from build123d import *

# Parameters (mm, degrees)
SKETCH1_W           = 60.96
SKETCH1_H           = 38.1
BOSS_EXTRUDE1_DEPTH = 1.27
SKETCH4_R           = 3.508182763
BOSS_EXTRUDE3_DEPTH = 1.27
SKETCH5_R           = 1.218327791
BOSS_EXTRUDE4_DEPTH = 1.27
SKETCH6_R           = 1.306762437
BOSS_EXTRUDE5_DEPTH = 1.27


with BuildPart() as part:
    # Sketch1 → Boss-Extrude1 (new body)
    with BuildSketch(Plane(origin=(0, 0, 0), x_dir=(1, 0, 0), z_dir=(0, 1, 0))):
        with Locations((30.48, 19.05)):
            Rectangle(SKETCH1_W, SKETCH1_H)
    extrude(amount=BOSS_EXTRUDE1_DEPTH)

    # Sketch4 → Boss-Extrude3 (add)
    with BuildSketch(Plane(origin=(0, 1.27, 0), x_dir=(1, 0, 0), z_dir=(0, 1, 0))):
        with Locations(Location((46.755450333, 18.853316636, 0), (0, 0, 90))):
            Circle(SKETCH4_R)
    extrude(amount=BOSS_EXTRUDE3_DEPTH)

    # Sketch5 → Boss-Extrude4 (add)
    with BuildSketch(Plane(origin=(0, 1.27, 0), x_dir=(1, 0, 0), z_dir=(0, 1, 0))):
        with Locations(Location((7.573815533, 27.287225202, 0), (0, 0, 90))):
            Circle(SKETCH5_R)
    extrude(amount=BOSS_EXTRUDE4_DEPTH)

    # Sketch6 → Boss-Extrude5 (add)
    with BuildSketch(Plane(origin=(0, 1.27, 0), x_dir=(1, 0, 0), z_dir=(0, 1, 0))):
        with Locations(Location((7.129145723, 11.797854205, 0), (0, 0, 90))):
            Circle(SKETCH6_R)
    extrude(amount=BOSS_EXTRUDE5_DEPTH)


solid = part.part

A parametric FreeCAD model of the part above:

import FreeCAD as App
import Part
import Sketcher
Q = App.Units.Quantity

doc = App.newDocument("Part")
body = doc.addObject("PartDesign::Body", "Body")

# Sketch on XZ plane
sketch1 = body.newObject("Sketcher::SketchObject", "Sketch")
sketch1.AttachmentSupport = (doc.getObject("XZ_Plane"), [""])
sketch1.MapMode = "FlatFace"
sketch1.addGeometry([
    Part.LineSegment(App.Vector(0, -38, 0), App.Vector(0, 0, 0)),
    Part.LineSegment(App.Vector(0, 0, 0), App.Vector(61, 0, 0)),
    Part.LineSegment(App.Vector(61, 0, 0), App.Vector(61, -38, 0)),
    Part.LineSegment(App.Vector(61, -38, 0), App.Vector(0, -38, 0)),
], False)
sketch1.addConstraint([
    Sketcher.Constraint("Coincident", 0, 2, 1, 1),
    Sketcher.Constraint("Coincident", 1, 2, 2, 1),
    Sketcher.Constraint("Coincident", 2, 2, 3, 1),
    Sketcher.Constraint("Coincident", 3, 2, 0, 1),
    Sketcher.Constraint("Vertical", 0),
    Sketcher.Constraint("Horizontal", 1),
    Sketcher.Constraint("Vertical", 2),
    Sketcher.Constraint("Horizontal", 3),
    Sketcher.Constraint("Coincident", 0, 2, -1, 1),
    Sketcher.Constraint("DistanceX", 1, 1, 1, 2, Q("2.4 in")),
    Sketcher.Constraint("DistanceY", 0, 1, 0, 2, Q("1.5 in")),
])
pad1 = body.newObject("PartDesign::Pad", "Pad")
pad1.Profile = sketch1
pad1.Length = Q("0.05 in")
pad1.Reversed = True

# Sketch on XZ plane
sketch2 = body.newObject("Sketcher::SketchObject", "Sketch001")
sketch2.AttachmentSupport = (doc.getObject("XZ_Plane"), [""])
sketch2.MapMode = "FlatFace"
sketch2.AttachmentOffset = App.Placement(App.Vector(0, 0, -0.05 * 25.4), App.Rotation())
sketch2.addGeometry(Part.Circle(App.Vector(46.8, -18.9, 0), App.Vector(0, 0, 1), 3.5), False)
sketch2.addConstraint([
    Sketcher.Constraint("Diameter", 0, 7.016366),
    Sketcher.Constraint("DistanceX", -1, 1, 0, 3, 46.75545),
    Sketcher.Constraint("DistanceY", 0, 3, -1, 1, 18.853317),
])
pad2 = body.newObject("PartDesign::Pad", "Pad001")
pad2.Profile = sketch2
pad2.Length = Q("0.05 in")
pad2.Reversed = True

# Sketch on XZ plane
sketch3 = body.newObject("Sketcher::SketchObject", "Sketch002")
sketch3.AttachmentSupport = (doc.getObject("XZ_Plane"), [""])
sketch3.MapMode = "FlatFace"
sketch3.AttachmentOffset = App.Placement(App.Vector(0, 0, -0.05 * 25.4), App.Rotation())
sketch3.addGeometry(Part.Circle(App.Vector(7.6, -27.3, 0), App.Vector(0, 0, 1), 1.2), False)
sketch3.addConstraint([
    Sketcher.Constraint("Diameter", 0, 2.436656),
    Sketcher.Constraint("DistanceX", -1, 1, 0, 3, 7.573816),
    Sketcher.Constraint("DistanceY", 0, 3, -1, 1, 27.287225),
])
pad3 = body.newObject("PartDesign::Pad", "Pad002")
pad3.Profile = sketch3
pad3.Length = Q("0.05 in")
pad3.Reversed = True

# Sketch on XZ plane
sketch4 = body.newObject("Sketcher::SketchObject", "Sketch003")
sketch4.AttachmentSupport = (doc.getObject("XZ_Plane"), [""])
sketch4.MapMode = "FlatFace"
sketch4.AttachmentOffset = App.Placement(App.Vector(0, 0, -0.05 * 25.4), App.Rotation())
sketch4.addGeometry(Part.Circle(App.Vector(7.1, -11.8, 0), App.Vector(0, 0, 1), 1.3), False)
sketch4.addConstraint([
    Sketcher.Constraint("Diameter", 0, 2.613525),
    Sketcher.Constraint("DistanceX", -1, 1, 0, 3, 7.129146),
    Sketcher.Constraint("DistanceY", 0, 3, -1, 1, 11.797854),
])
pad4 = body.newObject("PartDesign::Pad", "Pad003")
pad4.Profile = sketch4
pad4.Length = Q("0.05 in")
pad4.Reversed = True

doc.recompute()
